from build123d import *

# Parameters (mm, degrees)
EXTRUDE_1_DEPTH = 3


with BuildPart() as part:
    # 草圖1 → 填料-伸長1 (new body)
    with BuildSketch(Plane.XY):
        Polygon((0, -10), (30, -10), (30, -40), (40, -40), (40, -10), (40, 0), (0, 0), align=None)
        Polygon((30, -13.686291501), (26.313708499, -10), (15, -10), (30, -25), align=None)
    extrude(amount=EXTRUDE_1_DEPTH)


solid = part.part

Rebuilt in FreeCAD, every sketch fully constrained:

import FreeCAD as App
import Part
import Sketcher

V = App.Vector
Q = App.Units.Quantity

doc = App.newDocument("Part")
body = doc.addObject("PartDesign::Body", "Body")

# Sketch on XY plane
sketch1 = body.newObject("Sketcher::SketchObject", "Sketch")
sketch1.AttachmentSupport = (doc.getObject("XY_Plane"), [""])
sketch1.MapMode = "FlatFace"
sketch1.addGeometry([
    Part.LineSegment(V(0, -10, 0), V(15, -10, 0)),  # 0
    Part.LineSegment(V(15, -10, 0), V(30, -25, 0)),  # 1
    Part.LineSegment(V(30, -25, 0), V(30, -40, 0)),  # 2
    Part.LineSegment(V(30, -40, 0), V(40, -40, 0)),  # 3
    Part.LineSegment(V(40, -40, 0), V(40, 0, 0)),  # 4
    Part.LineSegment(V(40, 0, 0), V(0, 0, 0)),  # 5
    Part.LineSegment(V(0, 0, 0), V(0, -10, 0)),  # 6
    Part.LineSegment(V(26.3, -10, 0), V(30, -10, 0)),  # 7
    Part.LineSegment(V(30, -10, 0), V(30, -13.7, 0)),  # 8
    Part.LineSegment(V(30, -13.7, 0), V(26.3, -10, 0)),  # 9
], False)
sketch1.addConstraint([
    Sketcher.Constraint("Coincident", 0, 2, 1, 1),
    Sketcher.Constraint("Coincident", 1, 2, 2, 1),
    Sketcher.Constraint("Coincident", 2, 2, 3, 1),
    Sketcher.Constraint("Coincident", 3, 2, 4, 1),
    Sketcher.Constraint("Coincident", 4, 2, 5, 1),
    Sketcher.Constraint("Coincident", 5, 2, 6, 1),
    Sketcher.Constraint("Coincident", 6, 2, 0, 1),
    Sketcher.Constraint("Coincident", 7, 2, 8, 1),
    Sketcher.Constraint("Coincident", 8, 2, 9, 1),
    Sketcher.Constraint("Coincident", 9, 2, 7, 1),
    Sketcher.Constraint("Horizontal", 0),
    Sketcher.Constraint("Vertical", 2),
    Sketcher.Constraint("Horizontal", 3),
    Sketcher.Constraint("Vertical", 4),
    Sketcher.Constraint("Horizontal", 5),
    Sketcher.Constraint("Vertical", 6),
    Sketcher.Constraint("Horizontal", 7),
    Sketcher.Constraint("Vertical", 8),
    Sketcher.Constraint("Coincident", 5, 2, -1, 1),
    Sketcher.Constraint("Parallel", 1, 9),
    Sketcher.Constraint("Horizontal", 6, 2, 7, 2),
    Sketcher.Constraint("Vertical", 2, 2, 7, 2),
    Sketcher.Constraint("Equal", 0, 2),
    Sketcher.Constraint("Equal", 5, 4),
    Sketcher.Constraint("Equal", 3, 6),
    Sketcher.Constraint("DistanceX", 0, 1, 0, 2, Q("15 mm")),
    Sketcher.Constraint("DistanceX", 3, 1, 3, 2, Q("10 mm")),
    Sketcher.Constraint("DistanceX", 5, 2, 5, 1, Q("40 mm")),
    Sketcher.Constraint("DistanceX", 7, 1, 7, 2, Q("3.686292 mm")),
])
pad1 = body.newObject("PartDesign::Pad", "Pad")
pad1.Profile = sketch1
pad1.Length = 3

doc.recompute()
